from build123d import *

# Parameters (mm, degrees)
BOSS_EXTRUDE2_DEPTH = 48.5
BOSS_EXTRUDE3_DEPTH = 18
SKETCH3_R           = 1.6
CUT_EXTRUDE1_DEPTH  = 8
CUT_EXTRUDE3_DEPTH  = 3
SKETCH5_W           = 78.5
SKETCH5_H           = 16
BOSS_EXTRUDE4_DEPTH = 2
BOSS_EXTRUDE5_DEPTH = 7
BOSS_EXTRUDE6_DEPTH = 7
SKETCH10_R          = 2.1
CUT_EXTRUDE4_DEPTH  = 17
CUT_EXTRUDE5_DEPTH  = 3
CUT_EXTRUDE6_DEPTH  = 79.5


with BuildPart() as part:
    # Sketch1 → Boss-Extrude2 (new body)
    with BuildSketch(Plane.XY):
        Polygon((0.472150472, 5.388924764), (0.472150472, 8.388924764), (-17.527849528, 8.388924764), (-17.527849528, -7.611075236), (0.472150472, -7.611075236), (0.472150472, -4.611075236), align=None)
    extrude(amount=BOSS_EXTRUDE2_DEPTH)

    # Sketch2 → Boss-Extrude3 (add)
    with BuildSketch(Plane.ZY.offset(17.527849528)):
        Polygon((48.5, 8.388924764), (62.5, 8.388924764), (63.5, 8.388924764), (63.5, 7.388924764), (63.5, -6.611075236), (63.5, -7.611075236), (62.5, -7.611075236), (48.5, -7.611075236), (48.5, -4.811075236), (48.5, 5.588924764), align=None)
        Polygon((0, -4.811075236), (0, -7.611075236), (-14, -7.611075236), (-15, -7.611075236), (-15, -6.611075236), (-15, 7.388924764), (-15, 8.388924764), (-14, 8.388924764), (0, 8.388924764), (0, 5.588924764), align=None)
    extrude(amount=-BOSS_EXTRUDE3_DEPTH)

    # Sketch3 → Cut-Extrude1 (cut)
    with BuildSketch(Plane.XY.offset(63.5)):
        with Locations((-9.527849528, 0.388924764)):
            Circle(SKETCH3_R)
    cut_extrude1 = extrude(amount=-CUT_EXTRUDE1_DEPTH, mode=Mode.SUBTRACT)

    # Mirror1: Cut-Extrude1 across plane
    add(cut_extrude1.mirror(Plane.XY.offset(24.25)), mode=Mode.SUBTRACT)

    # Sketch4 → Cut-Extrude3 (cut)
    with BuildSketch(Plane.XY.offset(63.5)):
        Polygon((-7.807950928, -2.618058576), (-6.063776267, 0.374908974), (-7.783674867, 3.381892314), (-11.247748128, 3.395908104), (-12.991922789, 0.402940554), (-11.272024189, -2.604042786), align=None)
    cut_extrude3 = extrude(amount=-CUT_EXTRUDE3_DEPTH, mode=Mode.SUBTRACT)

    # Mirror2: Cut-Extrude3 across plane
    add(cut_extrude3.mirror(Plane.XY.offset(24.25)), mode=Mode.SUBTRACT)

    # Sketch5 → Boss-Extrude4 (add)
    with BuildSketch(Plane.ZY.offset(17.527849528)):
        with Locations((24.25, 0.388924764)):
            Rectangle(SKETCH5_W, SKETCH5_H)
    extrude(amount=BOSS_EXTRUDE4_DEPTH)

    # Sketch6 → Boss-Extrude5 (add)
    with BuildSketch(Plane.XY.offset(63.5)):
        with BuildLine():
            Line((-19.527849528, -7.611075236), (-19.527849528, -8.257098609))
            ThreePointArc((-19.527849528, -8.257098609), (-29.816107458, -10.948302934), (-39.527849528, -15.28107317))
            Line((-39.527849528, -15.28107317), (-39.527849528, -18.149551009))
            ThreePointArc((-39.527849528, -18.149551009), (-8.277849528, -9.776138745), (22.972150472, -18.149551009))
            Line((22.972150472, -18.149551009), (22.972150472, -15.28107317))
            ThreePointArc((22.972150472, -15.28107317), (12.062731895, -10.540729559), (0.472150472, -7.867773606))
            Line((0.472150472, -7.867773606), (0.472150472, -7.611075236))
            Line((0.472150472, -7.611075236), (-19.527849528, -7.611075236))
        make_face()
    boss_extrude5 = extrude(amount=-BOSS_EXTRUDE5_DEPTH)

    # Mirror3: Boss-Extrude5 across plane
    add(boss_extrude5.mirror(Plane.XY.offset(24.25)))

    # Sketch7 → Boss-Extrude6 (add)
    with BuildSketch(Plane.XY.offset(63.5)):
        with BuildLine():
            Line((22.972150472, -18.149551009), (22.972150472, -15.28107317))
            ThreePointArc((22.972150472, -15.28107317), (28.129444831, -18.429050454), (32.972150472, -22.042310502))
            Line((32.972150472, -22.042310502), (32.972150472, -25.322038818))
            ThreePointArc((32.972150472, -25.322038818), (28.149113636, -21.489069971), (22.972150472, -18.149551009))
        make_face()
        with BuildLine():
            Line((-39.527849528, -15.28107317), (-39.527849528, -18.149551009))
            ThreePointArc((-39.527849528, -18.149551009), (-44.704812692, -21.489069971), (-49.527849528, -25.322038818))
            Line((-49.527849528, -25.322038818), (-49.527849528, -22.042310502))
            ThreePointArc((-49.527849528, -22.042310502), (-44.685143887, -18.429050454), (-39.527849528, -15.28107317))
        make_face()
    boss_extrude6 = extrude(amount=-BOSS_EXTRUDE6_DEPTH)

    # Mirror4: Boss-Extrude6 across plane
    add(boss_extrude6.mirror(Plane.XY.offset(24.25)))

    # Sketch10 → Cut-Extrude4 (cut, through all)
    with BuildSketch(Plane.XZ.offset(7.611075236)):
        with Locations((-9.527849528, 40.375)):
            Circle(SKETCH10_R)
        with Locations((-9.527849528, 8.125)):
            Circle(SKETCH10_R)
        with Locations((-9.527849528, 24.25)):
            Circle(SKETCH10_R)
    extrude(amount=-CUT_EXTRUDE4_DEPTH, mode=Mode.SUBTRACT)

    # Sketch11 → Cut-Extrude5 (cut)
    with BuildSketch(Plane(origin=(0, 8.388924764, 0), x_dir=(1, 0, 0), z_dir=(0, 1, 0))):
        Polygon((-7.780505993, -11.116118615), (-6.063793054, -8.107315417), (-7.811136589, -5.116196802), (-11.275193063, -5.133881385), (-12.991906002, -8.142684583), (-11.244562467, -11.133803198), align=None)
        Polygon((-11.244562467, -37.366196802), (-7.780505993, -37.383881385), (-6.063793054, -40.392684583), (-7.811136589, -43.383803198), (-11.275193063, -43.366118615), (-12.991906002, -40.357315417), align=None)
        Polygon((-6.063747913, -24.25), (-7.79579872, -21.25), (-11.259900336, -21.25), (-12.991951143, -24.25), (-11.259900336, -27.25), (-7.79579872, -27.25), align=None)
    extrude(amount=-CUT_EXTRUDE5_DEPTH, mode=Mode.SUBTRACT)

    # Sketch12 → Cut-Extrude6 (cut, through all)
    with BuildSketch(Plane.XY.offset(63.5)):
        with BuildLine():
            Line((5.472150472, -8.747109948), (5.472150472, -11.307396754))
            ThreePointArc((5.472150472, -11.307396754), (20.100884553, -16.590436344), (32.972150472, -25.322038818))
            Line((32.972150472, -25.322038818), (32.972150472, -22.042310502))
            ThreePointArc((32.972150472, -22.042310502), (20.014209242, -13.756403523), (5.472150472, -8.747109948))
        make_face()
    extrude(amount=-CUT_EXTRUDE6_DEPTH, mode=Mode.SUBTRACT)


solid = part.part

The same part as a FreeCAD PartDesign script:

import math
import FreeCAD as App
import Part
import Sketcher
from FreeCAD import Vector
Q = App.Units.Quantity


def add_polygon(sketch, points):
    """Adds a closed chain of lines whose ends are joined by coincident constraints."""
    first, n = sketch.GeometryCount, len(points)
    for a, b in zip(points, points[1:] + points[:1]):
        sketch.addGeometry(Part.LineSegment(App.Vector(*a, 0), App.Vector(*b, 0)), False)
    for i in range(n):
        sketch.addConstraint(Sketcher.Constraint("Coincident", first + i, 2, first + (i + 1) % n, 1))

doc = App.newDocument("Part")
body = doc.addObject("PartDesign::Body", "Body")

# Sketch on XY plane
sketch1 = body.newObject("Sketcher::SketchObject", "Sketch")
sketch1.AttachmentSupport = (doc.getObject("XY_Plane"), [""])
sketch1.MapMode = "FlatFace"
add_polygon(sketch1, [(0, 8), (-18, 8), (-18, -8), (0, -8)])  # lines 0-3
sketch1.addConstraint([
    Sketcher.Constraint("Horizontal", 0),
    Sketcher.Constraint("Vertical", 1),
    Sketcher.Constraint("Horizontal", 2),
    Sketcher.Constraint("Vertical", 3),
    Sketcher.Constraint("DistanceX", 0, 2, 0, 1, 18.0),
    Sketcher.Constraint("DistanceY", 1, 2, 1, 1, 16.0),
    Sketcher.Constraint("DistanceX", 0, 2, -1, 1, 17.52785),
    Sketcher.Constraint("DistanceY", -1, 1, 0, 2, 8.388925),
])
pad1 = body.newObject("PartDesign::Pad", "Pad")
pad1.Profile = sketch1
pad1.Length = 48.5

# Sketch on YZ plane
sketch2 = body.newObject("Sketcher::SketchObject", "Sketch001")
sketch2.AttachmentSupport = (doc.getObject("YZ_Plane"), [""])
sketch2.MapMode = "FlatFace"
sketch2.AttachmentOffset = App.Placement(Vector(0, 0, -17.52785), App.Rotation())
add_polygon(sketch2, [(8, 64), (8, 48), (-8, 48), (-8, 64)])  # lines 0-3
add_polygon(sketch2, [(-8, 0), (8, 0), (8, -15), (-8, -15)])  # lines 4-7
sketch2.addConstraint([
    Sketcher.Constraint("Vertical", 0),
    Sketcher.Constraint("Horizontal", 1),
    Sketcher.Constraint("Vertical", 2),
    Sketcher.Constraint("Horizontal", 3),
    Sketcher.Constraint("Horizontal", 4),
    Sketcher.Constraint("Vertical", 5),
    Sketcher.Constraint("Horizontal", 6),
    Sketcher.Constraint("Vertical", 7),
    Sketcher.Constraint("PointOnObject", 4, 2, -1),
    Sketcher.Constraint("Vertical", 3, 2, 4, 2),
    Sketcher.Constraint("Vertical", 2, 2, 6, 2),
    Sketcher.Constraint("Equal", 2, 5),
    Sketcher.Constraint("DistanceX", 1, 2, 1, 1, 16.0),
    Sketcher.Constraint("DistanceY", 0, 2, 0, 1, 15.0),
    Sketcher.Constraint("DistanceY", -1, 1, 0, 2, 48.5),
    Sketcher.Constraint("DistanceX", -1, 1, 0, 2, 8.388925),
])
pad2 = body.newObject("PartDesign::Pad", "Pad001")
pad2.Profile = sketch2
pad2.Length = 18

# Sketch on XY plane
sketch3 = body.newObject("Sketcher::SketchObject", "Sketch002")
sketch3.AttachmentSupport = (doc.getObject("XY_Plane"), [""])
sketch3.MapMode = "FlatFace"
sketch3.AttachmentOffset = App.Placement(Vector(0, 0, 63.5), App.Rotation())
sketch3.addGeometry(Part.Circle(Vector(-9.5, 0.4, 0), Vector(0, 0, 1), 1.6), False)
sketch3.addConstraint([
    Sketcher.Constraint("Diameter", 0, 3.2),
    Sketcher.Constraint("DistanceX", 0, 3, -1, 1, 9.52785),
    Sketcher.Constraint("DistanceY", -1, 1, 0, 3, 0.388925),
])
pocket1 = body.newObject("PartDesign::Pocket", "Pocket")
pocket1.Profile = sketch3
pocket1.Length = 8
doc.recompute()

datumplane = body.newObject("PartDesign::Plane", "DatumPlane")
datumplane.AttachmentSupport = (doc.getObject("XY_Plane"), [""])
datumplane.MapMode = "FlatFace"
datumplane.AttachmentOffset = App.Placement(Vector(0, 0, 24.25), App.Rotation())
mirrored = body.newObject("PartDesign::Mirrored", "Mirrored")
mirrored.Originals = [pocket1]
mirrored.MirrorPlane = (datumplane, [""])
body.Tip = mirrored

# Sketch on XY plane
sketch4 = body.newObject("Sketcher::SketchObject", "Sketch003")
sketch4.AttachmentSupport = (doc.getObject("XY_Plane"), [""])
sketch4.MapMode = "FlatFace"
sketch4.AttachmentOffset = App.Placement(Vector(0, 0, 63.5), App.Rotation())
add_polygon(sketch4, [(-7.8, -2.6), (-6.1, 0.4), (-7.8, 3.4), (-11.2, 3.4), (-13, 0.4), (-11.3, -2.6)])  # lines 0-5
sketch4.addConstraint([
    Sketcher.Constraint("Parallel", 0, 3),
    Sketcher.Constraint("Parallel", 1, 4),
    Sketcher.Constraint("Parallel", 2, 5),
    Sketcher.Constraint("Equal", 0, 1),
    Sketcher.Constraint("Equal", 1, 2),
    Sketcher.Constraint("Equal", 2, 3),
    Sketcher.Constraint("DistanceY", 0, 2, 2, 2, 3.020999),
    Sketcher.Constraint("Distance", 0, 3.464102),
    Sketcher.Constraint("DistanceX", 1, 2, 0, 2, 1.719899),
    Sketcher.Constraint("DistanceY", -1, 1, 0, 2, 0.374909),
    Sketcher.Constraint("DistanceX", 2, 2, -1, 1, 11.247748),
    Sketcher.Constraint("DistanceY", -1, 1, 3, 2, 0.402941),
])
pocket2 = body.newObject("PartDesign::Pocket", "Pocket001")
pocket2.Profile = sketch4
pocket2.Length = 3
doc.recompute()

datumplane2 = body.newObject("PartDesign::Plane", "DatumPlane001")
datumplane2.AttachmentSupport = (doc.getObject("XY_Plane"), [""])
datumplane2.MapMode = "FlatFace"
datumplane2.AttachmentOffset = App.Placement(Vector(0, 0, 24.25), App.Rotation())
mirrored2 = body.newObject("PartDesign::Mirrored", "Mirrored001")
mirrored2.Originals = [pocket2]
mirrored2.MirrorPlane = (datumplane2, [""])
body.Tip = mirrored2

# Sketch on YZ plane
sketch5 = body.newObject("Sketcher::SketchObject", "Sketch004")
sketch5.AttachmentSupport = (doc.getObject("YZ_Plane"), [""])
sketch5.MapMode = "FlatFace"
sketch5.AttachmentOffset = App.Placement(Vector(0, 0, -17.52785), App.Rotation())
add_polygon(sketch5, [(8, -15), (-8, -15), (-8, 64), (8, 64)])  # lines 0-3
sketch5.addConstraint([
    Sketcher.Constraint("Horizontal", 0),
    Sketcher.Constraint("Vertical", 1),
    Sketcher.Constraint("Horizontal", 2),
    Sketcher.Constraint("Vertical", 3),
    Sketcher.Constraint("DistanceX", 0, 2, 0, 1, 16.0),
    Sketcher.Constraint("DistanceY", 1, 1, 1, 2, 78.5),
    Sketcher.Constraint("DistanceY", 0, 2, -1, 1, 15.0),
    Sketcher.Constraint("DistanceX", 0, 2, -1, 1, 7.611075),
])
pad3 = body.newObject("PartDesign::Pad", "Pad002")
pad3.Profile = sketch5
pad3.Length = 2
pad3.Reversed = True

# Sketch on XY plane
sketch6 = body.newObject("Sketcher::SketchObject", "Sketch005")
sketch6.AttachmentSupport = (doc.getObject("XY_Plane"), [""])
sketch6.MapMode = "FlatFace"
sketch6.AttachmentOffset = App.Placement(Vector(0, 0, 63.5), App.Rotation())
sketch6.addGeometry([
    Part.LineSegment(Vector(-19.53, -7.61, 0), Vector(-19.53, -8.26, 0)),  # 0
    Part.ArcOfCircle(Part.Circle(Vector(-8.28, -72.28, 0), Vector(0, 0, 1), 65), math.radians(99.97), math.radians(118.74)),  # 1
    Part.LineSegment(Vector(-39.53, -15.28, 0), Vector(-39.53, -18.15, 0)),  # 2
    Part.ArcOfCircle(Part.Circle(Vector(-8.28, -72.28, 0), Vector(0, 0, 1), 62.5), math.radians(60), math.radians(120)),  # 3
    Part.LineSegment(Vector(22.97, -18.15, 0), Vector(22.97, -15.28, 0)),  # 4
    Part.ArcOfCircle(Part.Circle(Vector(-8.28, -72.28, 0), Vector(0, 0, 1), 65), math.radians(61), math.radians(82)),  # 5
    Part.LineSegment(Vector(0.47, -7.87, 0), Vector(0.47, -7.61, 0)),  # 6
    Part.LineSegment(Vector(0.47, -7.61, 0), Vector(-19.53, -7.61, 0)),  # 7
], False)
sketch6.addConstraint([
    Sketcher.Constraint("Coincident", 0, 2, 1, 1),
    Sketcher.Constraint("Coincident", 1, 2, 2, 1),
    Sketcher.Constraint("Coincident", 2, 2, 3, 2),
    Sketcher.Constraint("Coincident", 3, 1, 4, 1),
    Sketcher.Constraint("Coincident", 4, 2, 5, 1),
    Sketcher.Constraint("Coincident", 5, 2, 6, 1),
    Sketcher.Constraint("Coincident", 6, 2, 7, 1),
    Sketcher.Constraint("Coincident", 7, 2, 0, 1),
    Sketcher.Constraint("Vertical", 0),
    Sketcher.Constraint("Vertical", 2),
    Sketcher.Constraint("Vertical", 4),
    Sketcher.Constraint("Vertical", 6),
    Sketcher.Constraint("Horizontal", 7),
    Sketcher.Constraint("Coincident", 3, 3, 1, 3),
    Sketcher.Constraint("Coincident", 5, 3, 1, 3),
    Sketcher.Constraint("Equal", 1, 5),
    Sketcher.Constraint("Horizontal", 2, 2, 3, 1),
    Sketcher.Constraint("Radius", 1, 65.0),
    Sketcher.Constraint("Radius", 3, 62.5),
    Sketcher.Constraint("DistanceX", 7, 2, 7, 1, 20.0),
    Sketcher.Constraint("DistanceX", 1, 2, 0, 2, 20.0),
    Sketcher.Constraint("DistanceX", 0, 2, 3, 1, 42.5),
    Sketcher.Constraint("DistanceY", 6, 1, 6, 2, 0.256698),
    Sketcher.Constraint("DistanceY", 0, 2, -1, 1, 8.257099),
    Sketcher.Constraint("DistanceX", 1, 3, -1, 1, 8.27785),
])
pad4 = body.newObject("PartDesign::Pad", "Pad003")
pad4.Profile = sketch6
pad4.Length = 7
pad4.Reversed = True
doc.recompute()

datumplane3 = body.newObject("PartDesign::Plane", "DatumPlane002")
datumplane3.AttachmentSupport = (doc.getObject("XY_Plane"), [""])
datumplane3.MapMode = "FlatFace"
datumplane3.AttachmentOffset = App.Placement(Vector(0, 0, 24.25), App.Rotation())
mirrored3 = body.newObject("PartDesign::Mirrored", "Mirrored002")
mirrored3.Originals = [pad4]
mirrored3.MirrorPlane = (datumplane3, [""])
body.Tip = mirrored3

# Sketch on XY plane
sketch7 = body.newObject("Sketcher::SketchObject", "Sketch006")
sketch7.AttachmentSupport = (doc.getObject("XY_Plane"), [""])
sketch7.MapMode = "FlatFace"
sketch7.AttachmentOffset = App.Placement(Vector(0, 0, 63.5), App.Rotation())
sketch7.addGeometry([
    Part.LineSegment(Vector(23, -15.3, 0), Vector(23, -18.1, 0)),  # 0
    Part.ArcOfCircle(Part.Circle(Vector(-8.3, -72.3, 0), Vector(0, 0, 1), 62.5), math.radians(48.7), math.radians(60)),  # 1
    Part.LineSegment(Vector(33, -25.3, 0), Vector(33, -22, 0)),  # 2
    Part.ArcOfCircle(Part.Circle(Vector(-8.3, -72.3, 0), Vector(0, 0, 1), 65), math.radians(50.61), math.radians(61.26)),  # 3
    Part.LineSegment(Vector(-39.5, -18.1, 0), Vector(-39.5, -15.3, 0)),  # 4
    Part.ArcOfCircle(Part.Circle(Vector(-8.3, -72.3, 0), Vector(0, 0, 1), 65), math.radians(118.74), math.radians(129.39)),  # 5
    Part.LineSegment(Vector(-49.5, -22, 0), Vector(-49.5, -25.3, 0)),  # 6
    Part.ArcOfCircle(Part.Circle(Vector(-8.3, -72.3, 0), Vector(0, 0, 1), 62.5), math.radians(120), math.radians(131.3)),  # 7
], False)
sketch7.addConstraint([
    Sketcher.Constraint("Coincident", 0, 2, 1, 2),
    Sketcher.Constraint("Coincident", 1, 1, 2, 1),
    Sketcher.Constraint("Coincident", 2, 2, 3, 1),
    Sketcher.Constraint("Coincident", 3, 2, 0, 1),
    Sketcher.Constraint("Coincident", 4, 2, 5, 1),
    Sketcher.Constraint("Coincident", 5, 2, 6, 1),
    Sketcher.Constraint("Coincident", 6, 2, 7, 2),
    Sketcher.Constraint("Coincident", 7, 1, 4, 1),
    Sketcher.Constraint("Vertical", 0),
    Sketcher.Constraint("Vertical", 2),
    Sketcher.Constraint("Vertical", 4),
    Sketcher.Constraint("Vertical", 6),
    Sketcher.Constraint("Coincident", 3, 3, 1, 3),
    Sketcher.Constraint("Coincident", 5, 3, 1, 3),
    Sketcher.Constraint("Coincident", 7, 3, 1, 3),
    Sketcher.Constraint("Equal", 3, 5),
    Sketcher.Constraint("Equal", 1, 7),
    Sketcher.Constraint("Horizontal", 3, 2, 4, 2),
    Sketcher.Constraint("Horizontal", 2, 2, 5, 2),
    Sketcher.Constraint("Radius", 3, 65.0),
    Sketcher.Constraint("Radius", 1, 62.5),
    Sketcher.Constraint("DistanceX", 0, 2, 1, 1, 10.0),
    Sketcher.Constraint("DistanceX", 4, 2, 3, 2, 62.5),
    Sketcher.Constraint("DistanceX", 1, 3, -1, 1, 8.277849),
    Sketcher.Constraint("DistanceY", 1, 3, -1, 1, 72.276139),
])
pad5 = body.newObject("PartDesign::Pad", "Pad004")
pad5.Profile = sketch7
pad5.Length = 7
pad5.Reversed = True
doc.recompute()

datumplane4 = body.newObject("PartDesign::Plane", "DatumPlane003")
datumplane4.AttachmentSupport = (doc.getObject("XY_Plane"), [""])
datumplane4.MapMode = "FlatFace"
datumplane4.AttachmentOffset = App.Placement(Vector(0, 0, 24.25), App.Rotation())
mirrored4 = body.newObject("PartDesign::Mirrored", "Mirrored003")
mirrored4.Originals = [pad5]
mirrored4.MirrorPlane = (datumplane4, [""])
body.Tip = mirrored4

# Sketch on XZ plane
sketch8 = body.newObject("Sketcher::SketchObject", "Sketch007")
sketch8.AttachmentSupport = (doc.getObject("XZ_Plane"), [""])
sketch8.MapMode = "FlatFace"
sketch8.AttachmentOffset = App.Placement(Vector(0, 0, 7.611075), App.Rotation())
sketch8.addGeometry([
    Part.Circle(Vector(-9.5, 40.4, 0), Vector(0, 0, 1), 2.1),
    Part.Circle(Vector(-9.5, 8.1, 0), Vector(0, 0, 1), 2.1),
    Part.Circle(Vector(-9.5, 24.2, 0), Vector(0, 0, 1), 2.1),
], False)
sketch8.addConstraint([
    Sketcher.Constraint("Equal", 0, 1),
    Sketcher.Constraint("Equal", 1, 2),
    Sketcher.Constraint("Vertical", 0, 3, 1, 3),
    Sketcher.Constraint("Vertical", 1, 3, 2, 3),
    Sketcher.Constraint("Diameter", 0, 4.2),
    Sketcher.Constraint("DistanceY", -1, 1, 2, 3, 24.25),
    Sketcher.Constraint("DistanceY", 1, 3, 0, 3, 32.25),
    Sketcher.Constraint("DistanceY", -1, 1, 0, 3, 40.375),
    Sketcher.Constraint("DistanceX", 0, 3, -1, 1, 9.52785),
])
pocket3 = body.newObject("PartDesign::Pocket", "Pocket002")
pocket3.Profile = sketch8
pocket3.Type = "ThroughAll"

# Sketch on XZ plane
sketch9 = body.newObject("Sketcher::SketchObject", "Sketch008")
sketch9.AttachmentSupport = (doc.getObject("XZ_Plane"), [""])
sketch9.MapMode = "FlatFace"
sketch9.AttachmentOffset = App.Placement(Vector(0, 0, -8.388925), App.Rotation())
add_polygon(sketch9, [(-7.780506, 11.116119), (-6.063793, 8.107315), (-7.811137, 5.116197), (-11.275193, 5.133881), (-12.991906, 8.142685), (-11.244562, 11.133803)])  # lines 0-5
add_polygon(sketch9, [(-7.780506, 37.383881), (-11.244562, 37.366197), (-12.991906, 40.357315), (-11.275193, 43.366119), (-7.811137, 43.383803), (-6.063793, 40.392685)])  # lines 6-11
add_polygon(sketch9, [(-6.063748, 24.25), (-7.795799, 21.25), (-11.2599, 21.25), (-12.991951, 24.25), (-11.2599, 27.25), (-7.795799, 27.25)])  # lines 12-17
sketch9.addConstraint([
    Sketcher.Constraint("Horizontal", 13),
    Sketcher.Constraint("Horizontal", 16),
    Sketcher.Constraint("Parallel", 0, 3),
    Sketcher.Constraint("Parallel", 1, 4),
    Sketcher.Constraint("Parallel", 2, 5),
    Sketcher.Constraint("Parallel", 6, 9),
    Sketcher.Constraint("Parallel", 7, 10),
    Sketcher.Constraint("Parallel", 8, 11),
    Sketcher.Constraint("Parallel", 12, 15),
    Sketcher.Constraint("Parallel", 14, 17),
    Sketcher.Constraint("Horizontal", 14, 2, 17, 2),
    Sketcher.Constraint("Vertical", 4, 2, 6, 2),
    Sketcher.Constraint("Vertical", 3, 2, 7, 2),
    Sketcher.Constraint("Vertical", 2, 2, 8, 2),
    Sketcher.Constraint("Vertical", 1, 2, 9, 2),
    Sketcher.Constraint("Vertical", 0, 2, 10, 2),
    Sketcher.Constraint("Vertical", 13, 2, 15, 2),
    Sketcher.Constraint("Vertical", 12, 2, 16, 2),
    Sketcher.Constraint("Equal", 0, 1),
    Sketcher.Constraint("Equal", 1, 2),
    Sketcher.Constraint("Equal", 2, 3),
    Sketcher.Constraint("Equal", 5, 6),
    Sketcher.Constraint("Equal", 6, 7),
    Sketcher.Constraint("Equal", 7, 8),
    Sketcher.Constraint("Equal", 11, 12),
    Sketcher.Constraint("Angle", 12, Q("-120 deg")),
    Sketcher.Constraint("DistanceY", 13, 2, 14, 2, 3.0),
    Sketcher.Constraint("DistanceY", -1, 1, 12, 2, 21.25),
    Sketcher.Constraint("DistanceY", 0, 2, 7, 2, 32.25),
    Sketcher.Constraint("DistanceX", 13, 2, 13, 1, 3.464102),
    Sketcher.Constraint("DistanceX", 12, 2, -1, 1, 7.795799),
    Sketcher.Constraint("DistanceX", 2, 2, 0, 2, 5.2114),
    Sketcher.Constraint("DistanceY", -1, 1, 2, 2, 5.133881),
    Sketcher.Constraint("DistanceY", -1, 1, 5, 2, 11.116119),
    Sketcher.Constraint("DistanceX", 3, 2, 1, 2, 5.180769),
    Sketcher.Constraint("DistanceX", 14, 2, 6, 2, 1.747389),
])
pocket4 = body.newObject("PartDesign::Pocket", "Pocket003")
pocket4.Profile = sketch9
pocket4.Length = 3
pocket4.Reversed = True

# Sketch on XY plane
sketch10 = body.newObject("Sketcher::SketchObject", "Sketch009")
sketch10.AttachmentSupport = (doc.getObject("XY_Plane"), [""])
sketch10.MapMode = "FlatFace"
sketch10.AttachmentOffset = App.Placement(Vector(0, 0, 63.5), App.Rotation())
sketch10.addGeometry([
    Part.LineSegment(Vector(5.5, -8.7, 0), Vector(5.5, -11.3, 0)),
    Part.ArcOfCircle(Part.Circle(Vector(-8.3, -72.3, 0), Vector(0, 0, 1), 62.5), math.radians(49), math.radians(77)),
    Part.LineSegment(Vector(33, -25.3, 0), Vector(33, -22, 0)),
    Part.ArcOfCircle(Part.Circle(Vector(-8.3, -72.3, 0), Vector(0, 0, 1), 65), math.radians(51), math.radians(78)),
], False)
sketch10.addConstraint([
    Sketcher.Constraint("Coincident", 0, 2, 1, 2),
    Sketcher.Constraint("Coincident", 1, 1, 2, 1),
    Sketcher.Constraint("Coincident", 2, 2, 3, 1),
    Sketcher.Constraint("Coincident", 3, 2, 0, 1),
    Sketcher.Constraint("Vertical", 0),
    Sketcher.Constraint("Vertical", 2),
    Sketcher.Constraint("Coincident", 3, 3, 1, 3),
    Sketcher.Constraint("Radius", 3, 65.0),
    Sketcher.Constraint("Radius", 1, 62.5),
    Sketcher.Constraint("DistanceX", 0, 2, 1, 1, 27.5),
    Sketcher.Constraint("DistanceX", 3, 3, 0, 2, 13.75),
    Sketcher.Constraint("DistanceX", 1, 3, -1, 1, 8.27785),
    Sketcher.Constraint("DistanceY", 1, 3, -1, 1, 72.276139),
])
pocket5 = body.newObject("PartDesign::Pocket", "Pocket004")
pocket5.Profile = sketch10
pocket5.Type = "ThroughAll"

doc.recompute()
